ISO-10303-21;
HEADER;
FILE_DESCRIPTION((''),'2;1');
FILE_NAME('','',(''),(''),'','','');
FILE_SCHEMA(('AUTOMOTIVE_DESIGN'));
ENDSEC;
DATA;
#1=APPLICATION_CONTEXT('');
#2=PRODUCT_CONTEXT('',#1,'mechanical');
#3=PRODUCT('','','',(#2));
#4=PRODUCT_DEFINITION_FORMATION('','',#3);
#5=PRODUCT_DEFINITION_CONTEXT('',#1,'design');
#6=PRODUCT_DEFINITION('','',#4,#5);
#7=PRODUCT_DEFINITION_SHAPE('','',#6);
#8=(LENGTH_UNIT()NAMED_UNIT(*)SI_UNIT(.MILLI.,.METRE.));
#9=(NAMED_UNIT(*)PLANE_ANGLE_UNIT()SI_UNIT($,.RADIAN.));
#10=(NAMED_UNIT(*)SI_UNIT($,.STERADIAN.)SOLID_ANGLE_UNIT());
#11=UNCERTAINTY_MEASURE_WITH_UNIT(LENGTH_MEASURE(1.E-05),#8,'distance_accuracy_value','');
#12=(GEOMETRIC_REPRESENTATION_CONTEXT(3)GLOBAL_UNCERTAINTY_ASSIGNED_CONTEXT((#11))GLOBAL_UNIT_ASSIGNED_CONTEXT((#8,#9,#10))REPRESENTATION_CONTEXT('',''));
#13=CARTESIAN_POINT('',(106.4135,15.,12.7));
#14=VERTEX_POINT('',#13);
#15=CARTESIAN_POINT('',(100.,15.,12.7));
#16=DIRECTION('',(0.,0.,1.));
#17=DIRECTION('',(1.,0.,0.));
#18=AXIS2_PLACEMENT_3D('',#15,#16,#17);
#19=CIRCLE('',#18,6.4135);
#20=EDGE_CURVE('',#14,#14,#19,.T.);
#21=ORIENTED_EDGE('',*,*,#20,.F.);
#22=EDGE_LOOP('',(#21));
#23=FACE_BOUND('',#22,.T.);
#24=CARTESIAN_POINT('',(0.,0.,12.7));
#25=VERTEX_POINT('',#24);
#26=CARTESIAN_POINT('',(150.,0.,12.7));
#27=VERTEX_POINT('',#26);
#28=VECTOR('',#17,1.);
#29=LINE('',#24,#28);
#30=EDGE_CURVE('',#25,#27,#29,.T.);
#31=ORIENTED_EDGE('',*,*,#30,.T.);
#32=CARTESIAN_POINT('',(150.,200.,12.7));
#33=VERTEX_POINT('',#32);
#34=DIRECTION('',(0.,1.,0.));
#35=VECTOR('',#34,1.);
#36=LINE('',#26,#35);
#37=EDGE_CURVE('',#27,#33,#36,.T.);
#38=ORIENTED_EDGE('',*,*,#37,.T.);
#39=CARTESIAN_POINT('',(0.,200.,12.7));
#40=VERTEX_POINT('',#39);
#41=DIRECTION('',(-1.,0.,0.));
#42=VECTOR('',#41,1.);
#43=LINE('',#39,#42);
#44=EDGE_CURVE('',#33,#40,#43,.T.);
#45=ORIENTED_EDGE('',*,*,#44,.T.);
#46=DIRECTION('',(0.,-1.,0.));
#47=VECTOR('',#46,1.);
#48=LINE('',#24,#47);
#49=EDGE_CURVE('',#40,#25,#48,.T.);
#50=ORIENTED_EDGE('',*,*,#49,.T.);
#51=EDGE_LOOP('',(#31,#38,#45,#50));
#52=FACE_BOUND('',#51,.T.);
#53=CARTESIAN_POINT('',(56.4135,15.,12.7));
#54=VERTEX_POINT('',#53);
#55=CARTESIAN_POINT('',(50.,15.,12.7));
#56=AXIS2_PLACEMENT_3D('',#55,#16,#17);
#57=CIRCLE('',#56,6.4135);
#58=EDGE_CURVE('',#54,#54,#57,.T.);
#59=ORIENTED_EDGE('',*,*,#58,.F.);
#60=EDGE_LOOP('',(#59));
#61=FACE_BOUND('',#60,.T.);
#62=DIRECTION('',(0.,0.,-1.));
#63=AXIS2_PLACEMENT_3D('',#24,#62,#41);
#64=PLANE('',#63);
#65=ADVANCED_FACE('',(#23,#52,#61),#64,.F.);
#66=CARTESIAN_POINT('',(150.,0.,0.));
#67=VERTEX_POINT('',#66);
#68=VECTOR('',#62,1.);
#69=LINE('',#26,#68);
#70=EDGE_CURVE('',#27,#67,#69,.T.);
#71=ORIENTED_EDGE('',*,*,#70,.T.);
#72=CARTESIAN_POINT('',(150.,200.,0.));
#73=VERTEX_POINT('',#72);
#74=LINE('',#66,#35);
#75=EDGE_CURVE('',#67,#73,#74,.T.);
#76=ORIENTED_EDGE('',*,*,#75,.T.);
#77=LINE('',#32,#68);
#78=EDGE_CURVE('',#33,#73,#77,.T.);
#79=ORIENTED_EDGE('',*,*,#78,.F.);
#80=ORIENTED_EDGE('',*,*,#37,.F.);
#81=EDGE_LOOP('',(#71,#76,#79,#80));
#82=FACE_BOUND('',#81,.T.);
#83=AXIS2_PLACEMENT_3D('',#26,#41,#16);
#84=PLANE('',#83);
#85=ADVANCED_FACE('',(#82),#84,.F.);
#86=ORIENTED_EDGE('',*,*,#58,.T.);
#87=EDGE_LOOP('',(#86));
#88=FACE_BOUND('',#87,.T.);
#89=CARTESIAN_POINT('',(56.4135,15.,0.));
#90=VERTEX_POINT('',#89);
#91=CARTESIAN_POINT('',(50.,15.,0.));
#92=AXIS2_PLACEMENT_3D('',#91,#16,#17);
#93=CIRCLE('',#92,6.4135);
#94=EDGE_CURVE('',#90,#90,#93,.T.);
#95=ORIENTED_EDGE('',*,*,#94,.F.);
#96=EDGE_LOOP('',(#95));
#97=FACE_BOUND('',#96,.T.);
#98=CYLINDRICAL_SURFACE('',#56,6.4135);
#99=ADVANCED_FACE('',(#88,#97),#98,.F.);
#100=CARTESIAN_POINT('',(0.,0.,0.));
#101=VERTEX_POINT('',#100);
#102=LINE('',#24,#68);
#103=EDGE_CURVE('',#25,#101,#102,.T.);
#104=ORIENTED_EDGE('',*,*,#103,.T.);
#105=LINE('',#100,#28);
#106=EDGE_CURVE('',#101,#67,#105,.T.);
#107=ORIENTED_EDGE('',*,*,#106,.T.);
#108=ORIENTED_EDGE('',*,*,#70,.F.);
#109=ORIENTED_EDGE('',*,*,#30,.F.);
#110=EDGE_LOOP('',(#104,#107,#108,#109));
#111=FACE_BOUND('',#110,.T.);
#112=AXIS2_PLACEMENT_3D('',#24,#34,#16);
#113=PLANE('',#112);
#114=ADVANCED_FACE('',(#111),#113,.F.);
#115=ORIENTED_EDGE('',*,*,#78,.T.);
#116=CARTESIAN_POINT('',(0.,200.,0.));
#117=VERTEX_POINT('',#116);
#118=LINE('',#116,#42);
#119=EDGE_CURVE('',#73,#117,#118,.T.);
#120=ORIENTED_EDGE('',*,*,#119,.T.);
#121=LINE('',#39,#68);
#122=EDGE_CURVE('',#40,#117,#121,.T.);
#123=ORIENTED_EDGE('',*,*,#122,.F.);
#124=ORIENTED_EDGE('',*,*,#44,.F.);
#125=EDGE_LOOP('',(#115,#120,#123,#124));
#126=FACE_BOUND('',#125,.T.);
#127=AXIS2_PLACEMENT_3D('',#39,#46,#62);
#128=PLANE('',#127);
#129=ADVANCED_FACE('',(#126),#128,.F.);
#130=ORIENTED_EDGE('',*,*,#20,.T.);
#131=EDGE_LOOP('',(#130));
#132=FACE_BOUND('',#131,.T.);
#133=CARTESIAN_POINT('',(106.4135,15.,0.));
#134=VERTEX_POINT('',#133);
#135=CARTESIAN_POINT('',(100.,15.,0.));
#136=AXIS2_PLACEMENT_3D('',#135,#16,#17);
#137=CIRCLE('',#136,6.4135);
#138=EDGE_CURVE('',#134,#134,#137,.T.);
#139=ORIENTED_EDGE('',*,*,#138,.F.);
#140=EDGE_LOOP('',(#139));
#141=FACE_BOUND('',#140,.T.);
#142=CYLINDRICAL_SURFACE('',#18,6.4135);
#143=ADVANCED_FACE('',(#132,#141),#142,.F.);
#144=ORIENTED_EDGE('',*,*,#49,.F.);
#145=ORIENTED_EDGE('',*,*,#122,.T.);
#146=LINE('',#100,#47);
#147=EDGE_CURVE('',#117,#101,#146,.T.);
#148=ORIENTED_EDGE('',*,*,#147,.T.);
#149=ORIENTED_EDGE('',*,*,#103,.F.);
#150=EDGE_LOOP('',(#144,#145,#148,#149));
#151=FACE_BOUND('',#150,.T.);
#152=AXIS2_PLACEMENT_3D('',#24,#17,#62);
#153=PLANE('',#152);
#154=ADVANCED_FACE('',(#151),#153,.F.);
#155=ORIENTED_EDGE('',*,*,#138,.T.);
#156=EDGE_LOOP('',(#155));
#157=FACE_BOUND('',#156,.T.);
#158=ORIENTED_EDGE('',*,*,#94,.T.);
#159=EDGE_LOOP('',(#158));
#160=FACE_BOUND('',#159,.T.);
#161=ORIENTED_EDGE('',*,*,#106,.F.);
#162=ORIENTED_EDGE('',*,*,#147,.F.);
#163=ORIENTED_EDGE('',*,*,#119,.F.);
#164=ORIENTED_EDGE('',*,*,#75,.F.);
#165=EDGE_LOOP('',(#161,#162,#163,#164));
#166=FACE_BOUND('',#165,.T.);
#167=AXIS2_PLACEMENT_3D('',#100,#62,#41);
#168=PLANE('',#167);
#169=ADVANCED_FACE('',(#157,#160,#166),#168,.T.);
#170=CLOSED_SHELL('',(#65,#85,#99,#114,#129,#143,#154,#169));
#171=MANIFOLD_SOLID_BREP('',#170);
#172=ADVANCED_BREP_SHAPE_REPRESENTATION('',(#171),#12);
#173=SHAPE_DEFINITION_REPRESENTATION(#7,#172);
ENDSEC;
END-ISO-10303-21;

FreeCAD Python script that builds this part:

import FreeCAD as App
import Part
import Sketcher

V = App.Vector
Q = App.Units.Quantity

doc = App.newDocument("Part")
body = doc.addObject("PartDesign::Body", "Body")

# Sketch on XY plane
sketch1 = body.newObject("Sketcher::SketchObject", "Sketch")
sketch1.AttachmentSupport = (doc.getObject("XY_Plane"), [""])
sketch1.MapMode = "FlatFace"
sketch1.addGeometry([
    Part.LineSegment(V(0, 200, 0), V(0, 0, 0)),
    Part.LineSegment(V(0, 0, 0), V(150, 0, 0)),
    Part.LineSegment(V(150, 0, 0), V(150, 200, 0)),
    Part.LineSegment(V(150, 200, 0), V(0, 200, 0)),
], False)
sketch1.addConstraint([
    Sketcher.Constraint("Coincident", 0, 2, 1, 1),
    Sketcher.Constraint("Coincident", 1, 2, 2, 1),
    Sketcher.Constraint("Coincident", 2, 2, 3, 1),
    Sketcher.Constraint("Coincident", 3, 2, 0, 1),
    Sketcher.Constraint("Vertical", 0),
    Sketcher.Constraint("Horizontal", 1),
    Sketcher.Constraint("Vertical", 2),
    Sketcher.Constraint("Horizontal", 3),
    Sketcher.Constraint("Coincident", 0, 2, -1, 1),
    Sketcher.Constraint("DistanceX", 1, 1, 1, 2, Q("150 mm")),
    Sketcher.Constraint("DistanceY", 0, 2, 0, 1, Q("200 mm")),
])
pad1 = body.newObject("PartDesign::Pad", "Pad")
pad1.Profile = sketch1
pad1.Length = 12.7

# Sketch on XY plane
sketch2 = body.newObject("Sketcher::SketchObject", "Sketch001")
sketch2.AttachmentSupport = (doc.getObject("XY_Plane"), [""])
sketch2.MapMode = "FlatFace"
sketch2.AttachmentOffset = App.Placement(V(0, 0, 12.7), App.Rotation())
sketch2.addGeometry([
    Part.Circle(V(100, 15, 0), V(0, 0, 1), 6),
    Part.Circle(V(50, 15, 0), V(0, 0, 1), 6),
], False)
sketch2.addConstraint([
    Sketcher.Constraint("Equal", 0, 1),
    Sketcher.Constraint("Horizontal", 0, 3, 1, 3),
    Sketcher.Constraint("Diameter", 0, Q("12.827 mm")),
    Sketcher.Constraint("DistanceX", -1, 1, 0, 3, Q("100 mm")),
    Sketcher.Constraint("DistanceY", -1, 1, 0, 3, Q("15 mm")),
    Sketcher.Constraint("DistanceX", -1, 1, 1, 3, Q("50 mm")),
])
doc.recompute()
hole = body.newObject("PartDesign::Hole", "Hole")
hole.Profile = sketch2
hole.ThreadType = "None"
hole.Diameter = 12.827
hole.DepthType = "ThroughAll"

doc.recompute()
